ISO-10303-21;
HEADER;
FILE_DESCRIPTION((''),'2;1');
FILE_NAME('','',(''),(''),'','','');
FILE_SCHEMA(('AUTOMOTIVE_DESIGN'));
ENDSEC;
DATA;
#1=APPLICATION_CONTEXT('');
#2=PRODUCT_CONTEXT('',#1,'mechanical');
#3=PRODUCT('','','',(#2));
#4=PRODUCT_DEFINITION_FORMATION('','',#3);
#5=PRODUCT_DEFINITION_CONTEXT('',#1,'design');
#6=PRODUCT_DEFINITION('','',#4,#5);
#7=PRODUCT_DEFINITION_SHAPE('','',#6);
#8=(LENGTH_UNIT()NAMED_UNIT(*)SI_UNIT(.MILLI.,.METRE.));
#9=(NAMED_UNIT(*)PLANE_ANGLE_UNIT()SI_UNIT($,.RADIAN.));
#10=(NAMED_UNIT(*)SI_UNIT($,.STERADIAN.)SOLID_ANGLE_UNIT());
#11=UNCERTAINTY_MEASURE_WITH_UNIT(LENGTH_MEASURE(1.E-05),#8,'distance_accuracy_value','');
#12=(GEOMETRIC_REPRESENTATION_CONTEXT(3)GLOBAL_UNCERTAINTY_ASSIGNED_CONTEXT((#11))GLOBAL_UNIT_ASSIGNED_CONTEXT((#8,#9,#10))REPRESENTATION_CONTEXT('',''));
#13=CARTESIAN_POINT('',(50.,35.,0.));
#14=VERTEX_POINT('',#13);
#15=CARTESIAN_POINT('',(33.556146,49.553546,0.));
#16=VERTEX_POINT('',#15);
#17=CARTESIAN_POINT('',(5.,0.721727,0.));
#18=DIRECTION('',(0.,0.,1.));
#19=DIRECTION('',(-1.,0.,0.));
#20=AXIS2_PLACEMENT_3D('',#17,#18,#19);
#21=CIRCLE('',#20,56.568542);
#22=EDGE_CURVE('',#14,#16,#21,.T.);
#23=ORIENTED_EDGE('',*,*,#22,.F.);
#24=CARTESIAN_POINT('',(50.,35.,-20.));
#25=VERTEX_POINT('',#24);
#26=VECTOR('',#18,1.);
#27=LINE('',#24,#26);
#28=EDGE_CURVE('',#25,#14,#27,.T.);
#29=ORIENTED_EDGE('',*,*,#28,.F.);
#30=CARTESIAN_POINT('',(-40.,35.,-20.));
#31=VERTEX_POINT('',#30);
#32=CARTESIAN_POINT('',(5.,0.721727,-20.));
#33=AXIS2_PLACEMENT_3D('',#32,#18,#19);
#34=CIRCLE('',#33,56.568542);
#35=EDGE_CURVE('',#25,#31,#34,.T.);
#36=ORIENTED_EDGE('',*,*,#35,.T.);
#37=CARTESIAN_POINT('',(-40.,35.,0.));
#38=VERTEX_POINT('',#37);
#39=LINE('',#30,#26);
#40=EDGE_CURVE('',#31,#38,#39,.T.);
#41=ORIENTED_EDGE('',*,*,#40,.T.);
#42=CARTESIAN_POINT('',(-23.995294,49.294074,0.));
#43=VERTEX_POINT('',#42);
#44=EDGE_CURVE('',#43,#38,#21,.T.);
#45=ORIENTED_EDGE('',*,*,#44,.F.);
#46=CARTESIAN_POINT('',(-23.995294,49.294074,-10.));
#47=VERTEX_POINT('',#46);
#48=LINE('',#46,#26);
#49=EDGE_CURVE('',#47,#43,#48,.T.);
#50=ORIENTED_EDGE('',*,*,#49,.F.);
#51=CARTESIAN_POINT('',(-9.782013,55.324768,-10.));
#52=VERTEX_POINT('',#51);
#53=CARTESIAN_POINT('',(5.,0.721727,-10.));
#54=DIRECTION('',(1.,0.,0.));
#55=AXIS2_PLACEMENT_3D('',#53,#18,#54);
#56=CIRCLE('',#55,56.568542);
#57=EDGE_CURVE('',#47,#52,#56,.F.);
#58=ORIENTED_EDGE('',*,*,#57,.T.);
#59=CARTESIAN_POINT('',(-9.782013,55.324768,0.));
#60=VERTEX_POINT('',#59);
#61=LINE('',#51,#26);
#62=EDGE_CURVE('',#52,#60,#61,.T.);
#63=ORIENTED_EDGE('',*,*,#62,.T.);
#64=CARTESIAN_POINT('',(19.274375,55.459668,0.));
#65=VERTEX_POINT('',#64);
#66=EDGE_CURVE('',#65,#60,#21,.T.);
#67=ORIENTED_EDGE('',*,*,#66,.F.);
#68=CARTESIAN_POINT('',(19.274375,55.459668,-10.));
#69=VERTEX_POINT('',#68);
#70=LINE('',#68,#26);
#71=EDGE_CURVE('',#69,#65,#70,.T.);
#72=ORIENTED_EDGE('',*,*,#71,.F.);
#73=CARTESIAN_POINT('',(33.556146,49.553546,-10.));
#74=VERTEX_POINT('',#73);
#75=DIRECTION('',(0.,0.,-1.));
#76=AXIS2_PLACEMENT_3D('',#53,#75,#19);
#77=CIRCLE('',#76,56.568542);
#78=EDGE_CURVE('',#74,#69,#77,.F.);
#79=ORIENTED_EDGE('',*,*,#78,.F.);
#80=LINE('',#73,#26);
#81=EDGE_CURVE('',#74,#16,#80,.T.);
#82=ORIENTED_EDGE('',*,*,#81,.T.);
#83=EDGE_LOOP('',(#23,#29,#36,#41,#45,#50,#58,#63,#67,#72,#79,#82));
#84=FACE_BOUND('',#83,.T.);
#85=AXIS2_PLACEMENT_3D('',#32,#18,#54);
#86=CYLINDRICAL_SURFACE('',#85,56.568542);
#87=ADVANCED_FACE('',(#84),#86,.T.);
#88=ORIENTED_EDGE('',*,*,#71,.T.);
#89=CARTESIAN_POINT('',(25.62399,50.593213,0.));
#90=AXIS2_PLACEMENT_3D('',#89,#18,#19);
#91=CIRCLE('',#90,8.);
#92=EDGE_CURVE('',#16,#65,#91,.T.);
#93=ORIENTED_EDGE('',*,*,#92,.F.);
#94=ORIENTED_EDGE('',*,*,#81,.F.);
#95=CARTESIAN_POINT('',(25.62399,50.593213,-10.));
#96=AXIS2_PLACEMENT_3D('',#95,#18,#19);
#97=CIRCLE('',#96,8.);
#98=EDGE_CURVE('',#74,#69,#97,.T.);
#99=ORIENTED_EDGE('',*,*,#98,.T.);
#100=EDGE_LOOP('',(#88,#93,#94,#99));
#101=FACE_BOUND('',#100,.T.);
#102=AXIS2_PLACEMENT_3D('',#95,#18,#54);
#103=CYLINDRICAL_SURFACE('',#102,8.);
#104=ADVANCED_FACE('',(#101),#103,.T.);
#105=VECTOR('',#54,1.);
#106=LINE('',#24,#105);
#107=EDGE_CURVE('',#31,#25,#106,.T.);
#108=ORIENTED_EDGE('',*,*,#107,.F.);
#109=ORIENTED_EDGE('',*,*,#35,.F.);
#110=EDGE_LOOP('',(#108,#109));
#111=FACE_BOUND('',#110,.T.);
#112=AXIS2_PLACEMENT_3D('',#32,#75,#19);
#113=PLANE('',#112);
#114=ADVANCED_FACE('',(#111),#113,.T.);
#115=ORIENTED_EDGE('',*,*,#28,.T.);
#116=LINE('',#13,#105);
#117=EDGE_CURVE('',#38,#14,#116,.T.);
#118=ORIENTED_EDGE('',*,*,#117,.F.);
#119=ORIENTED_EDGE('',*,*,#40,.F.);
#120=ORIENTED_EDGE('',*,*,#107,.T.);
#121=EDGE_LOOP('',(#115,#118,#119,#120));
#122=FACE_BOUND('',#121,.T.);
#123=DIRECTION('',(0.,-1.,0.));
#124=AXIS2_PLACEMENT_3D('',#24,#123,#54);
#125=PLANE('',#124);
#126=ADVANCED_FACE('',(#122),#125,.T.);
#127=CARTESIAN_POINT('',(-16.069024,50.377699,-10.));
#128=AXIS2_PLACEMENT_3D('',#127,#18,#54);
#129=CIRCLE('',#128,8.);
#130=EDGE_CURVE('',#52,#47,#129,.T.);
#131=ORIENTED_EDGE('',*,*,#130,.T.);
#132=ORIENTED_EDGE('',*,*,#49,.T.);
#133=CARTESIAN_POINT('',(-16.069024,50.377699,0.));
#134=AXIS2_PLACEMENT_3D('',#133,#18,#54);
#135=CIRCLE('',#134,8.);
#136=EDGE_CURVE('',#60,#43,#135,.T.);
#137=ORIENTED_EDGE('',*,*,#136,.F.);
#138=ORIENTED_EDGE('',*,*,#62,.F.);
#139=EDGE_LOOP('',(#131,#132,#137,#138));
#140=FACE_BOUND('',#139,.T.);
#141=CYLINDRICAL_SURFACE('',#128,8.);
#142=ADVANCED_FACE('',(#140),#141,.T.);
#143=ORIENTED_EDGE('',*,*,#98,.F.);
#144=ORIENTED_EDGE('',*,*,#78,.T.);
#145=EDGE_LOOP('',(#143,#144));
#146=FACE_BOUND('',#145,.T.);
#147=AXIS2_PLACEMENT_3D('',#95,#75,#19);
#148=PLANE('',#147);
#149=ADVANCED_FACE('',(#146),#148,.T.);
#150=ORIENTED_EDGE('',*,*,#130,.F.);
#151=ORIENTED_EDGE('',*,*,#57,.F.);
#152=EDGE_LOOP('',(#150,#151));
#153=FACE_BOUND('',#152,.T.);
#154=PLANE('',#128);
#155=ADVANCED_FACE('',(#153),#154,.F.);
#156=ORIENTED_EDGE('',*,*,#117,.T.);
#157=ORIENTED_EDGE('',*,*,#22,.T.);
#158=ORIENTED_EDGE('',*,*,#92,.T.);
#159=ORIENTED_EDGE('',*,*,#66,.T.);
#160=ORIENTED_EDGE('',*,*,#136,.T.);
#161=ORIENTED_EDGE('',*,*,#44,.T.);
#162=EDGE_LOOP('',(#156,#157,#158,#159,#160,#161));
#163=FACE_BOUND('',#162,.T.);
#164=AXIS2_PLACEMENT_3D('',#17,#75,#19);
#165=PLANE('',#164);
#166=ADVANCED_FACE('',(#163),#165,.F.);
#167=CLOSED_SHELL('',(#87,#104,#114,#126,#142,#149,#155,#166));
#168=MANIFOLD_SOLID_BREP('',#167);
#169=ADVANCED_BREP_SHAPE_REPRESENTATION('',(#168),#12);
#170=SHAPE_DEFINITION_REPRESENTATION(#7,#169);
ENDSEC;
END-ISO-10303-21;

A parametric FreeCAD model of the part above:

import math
import FreeCAD as App
import Part
import Sketcher

V = App.Vector

doc = App.newDocument("Part")
body = doc.addObject("PartDesign::Body", "Body")

sketch1 = body.newObject("Sketcher::SketchObject", "Sketch")
sketch1.AttachmentSupport = (doc.getObject("XY_Plane"), [""])
sketch1.MapMode = "FlatFace"
sketch1.addGeometry([
    Part.LineSegment(V(-40, 35, 0), V(50, 35, 0)),
    Part.ArcOfCircle(Part.Circle(V(5, 1, 0), V(0, 0, 1), 57), math.radians(37), math.radians(143)),
], False)
sketch1.addConstraint([
    Sketcher.Constraint("Coincident", 0, 1, 1, 2),
    Sketcher.Constraint("Coincident", 1, 1, 0, 2),
    Sketcher.Constraint("Horizontal", 0),
    Sketcher.Constraint("DistanceX", 0, 1, 0, 2, 90.0),
    Sketcher.Constraint("DistanceX", -1, 1, 1, 3, 5.0),
    Sketcher.Constraint("DistanceY", -1, 1, 0, 1, 35.0),
    Sketcher.Constraint("Radius", 1, 56.568542),
])
pad1 = body.newObject("PartDesign::Pad", "Pad")
pad1.Profile = sketch1
pad1.Length = 20
pad1.Reversed = True

sketch2 = body.newObject("Sketcher::SketchObject", "Sketch001")
sketch2.AttachmentSupport = (doc.getObject("XY_Plane"), [""])
sketch2.MapMode = "FlatFace"
sketch2.addGeometry([
    Part.LineSegment(V(-24, 49, 0), V(-10, 55, 0)),
    Part.ArcOfCircle(Part.Circle(V(-16, 50, 0), V(0, 0, 1), 8), math.radians(38), math.radians(188)),
    Part.LineSegment(V(19, 55, 0), V(34, 50, 0)),
    Part.ArcOfCircle(Part.Circle(V(26, 51, 0), V(0, 0, 1), 8), math.radians(-7), math.radians(143)),
], False)
sketch2.addConstraint([
    Sketcher.Constraint("Coincident", 0, 1, 1, 2),
    Sketcher.Constraint("Coincident", 1, 1, 0, 2),
    Sketcher.Constraint("Coincident", 2, 1, 3, 2),
    Sketcher.Constraint("Coincident", 3, 1, 2, 2),
    Sketcher.Constraint("Equal", 1, 3),
    Sketcher.Constraint("Radius", 1, 8.0),
    Sketcher.Constraint("DistanceY", -1, 1, 1, 3, 50.377699),
    Sketcher.Constraint("DistanceY", 1, 1, 2, 1, 0.1349),
    Sketcher.Constraint("DistanceX", 1, 3, 2, 1, 35.343399),
    Sketcher.Constraint("DistanceX", -1, 1, 3, 3, 25.62399),
    Sketcher.Constraint("DistanceY", -1, 1, 1, 1, 55.324768),
    Sketcher.Constraint("DistanceX", 0, 1, 1, 3, 7.92627),
    Sketcher.Constraint("DistanceY", 0, 1, 3, 3, 1.299138),
    Sketcher.Constraint("DistanceX", 2, 1, 3, 1, 14.281771),
])
pad2 = body.newObject("PartDesign::Pad", "Pad001")
pad2.Profile = sketch2
pad2.Length = 10
pad2.Reversed = True

doc.recompute()
